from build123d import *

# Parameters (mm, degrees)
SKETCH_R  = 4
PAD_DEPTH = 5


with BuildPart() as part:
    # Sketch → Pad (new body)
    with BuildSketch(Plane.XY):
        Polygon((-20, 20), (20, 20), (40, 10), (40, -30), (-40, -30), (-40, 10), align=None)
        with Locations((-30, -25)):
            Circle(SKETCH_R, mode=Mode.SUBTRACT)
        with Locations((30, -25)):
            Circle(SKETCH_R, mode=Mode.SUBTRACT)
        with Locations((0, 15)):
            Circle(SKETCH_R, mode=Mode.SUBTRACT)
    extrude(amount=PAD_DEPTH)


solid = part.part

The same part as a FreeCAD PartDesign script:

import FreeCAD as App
import Part
import Sketcher

V = App.Vector


def add_polygon(sketch, points):
    """Adds a closed chain of lines whose ends are joined by coincident constraints."""
    first, n = sketch.GeometryCount, len(points)
    for a, b in zip(points, points[1:] + points[:1]):
        sketch.addGeometry(Part.LineSegment(App.Vector(*a, 0), App.Vector(*b, 0)), False)
    for i in range(n):
        sketch.addConstraint(Sketcher.Constraint("Coincident", first + i, 2, first + (i + 1) % n, 1))

doc = App.newDocument("Part")
body = doc.addObject("PartDesign::Body", "Body")

# Sketch on XY plane
sketch1 = doc.addObject("Sketcher::SketchObject", "Sketch")
body.addObject(sketch1)
sketch1.AttachmentSupport = (doc.XY_Plane, [""])
sketch1.MapMode = "FlatFace"
add_polygon(sketch1, [(20, 20), (-20, 20), (-40, 10), (-40, -30), (40, -30), (40, 10)])  # lines 0-5
sketch1.addGeometry(Part.Circle(V(30, -25, 0), V(0, 0, 1), 4), False)  # 6
sketch1.addGeometry(Part.Circle(V(-30, -25, 0), V(0, 0, 1), 4), False)  # 7
sketch1.addGeometry(Part.Circle(V(0, 15, 0), V(0, 0, 1), 4), False)  # 8
sketch1.addConstraint([
    Sketcher.Constraint("Horizontal", 0),
    Sketcher.Constraint("Vertical", 2),
    Sketcher.Constraint("Horizontal", 3),
    Sketcher.Constraint("Vertical", 4),
    Sketcher.Constraint("Equal", 6, 7),
    Sketcher.Constraint("Equal", 7, 8),
    Sketcher.Constraint("Symmetric", 6, 3, 7, 3, -2),
    Sketcher.Constraint("Symmetric", 1, 2, 4, 2, -2),
    Sketcher.Constraint("PointOnObject", 8, 3, -2),
    Sketcher.Constraint("Equal", 0, 2),
    Sketcher.Constraint("Equal", 1, 5),
    Sketcher.Constraint("Diameter", 6, 8.0),
    Sketcher.Constraint("DistanceX", 0, 2, 0, 1, 40.0),
    Sketcher.Constraint("DistanceX", 3, 1, 3, 2, 80.0),
    Sketcher.Constraint("DistanceX", -1, 1, 6, 3, 30.0),
    Sketcher.Constraint("DistanceY", 6, 3, -1, 1, 25.0),
    Sketcher.Constraint("DistanceY", -1, 1, 8, 3, 15.0),
    Sketcher.Constraint("DistanceY", -1, 1, 0, 2, 20.0),
    Sketcher.Constraint("DistanceY", -1, 1, 1, 2, 10.0),
])
pad1 = doc.addObject("PartDesign::Pad", "Pad")
body.addObject(pad1)
pad1.Profile = sketch1
pad1.Length = 5

doc.recompute()
